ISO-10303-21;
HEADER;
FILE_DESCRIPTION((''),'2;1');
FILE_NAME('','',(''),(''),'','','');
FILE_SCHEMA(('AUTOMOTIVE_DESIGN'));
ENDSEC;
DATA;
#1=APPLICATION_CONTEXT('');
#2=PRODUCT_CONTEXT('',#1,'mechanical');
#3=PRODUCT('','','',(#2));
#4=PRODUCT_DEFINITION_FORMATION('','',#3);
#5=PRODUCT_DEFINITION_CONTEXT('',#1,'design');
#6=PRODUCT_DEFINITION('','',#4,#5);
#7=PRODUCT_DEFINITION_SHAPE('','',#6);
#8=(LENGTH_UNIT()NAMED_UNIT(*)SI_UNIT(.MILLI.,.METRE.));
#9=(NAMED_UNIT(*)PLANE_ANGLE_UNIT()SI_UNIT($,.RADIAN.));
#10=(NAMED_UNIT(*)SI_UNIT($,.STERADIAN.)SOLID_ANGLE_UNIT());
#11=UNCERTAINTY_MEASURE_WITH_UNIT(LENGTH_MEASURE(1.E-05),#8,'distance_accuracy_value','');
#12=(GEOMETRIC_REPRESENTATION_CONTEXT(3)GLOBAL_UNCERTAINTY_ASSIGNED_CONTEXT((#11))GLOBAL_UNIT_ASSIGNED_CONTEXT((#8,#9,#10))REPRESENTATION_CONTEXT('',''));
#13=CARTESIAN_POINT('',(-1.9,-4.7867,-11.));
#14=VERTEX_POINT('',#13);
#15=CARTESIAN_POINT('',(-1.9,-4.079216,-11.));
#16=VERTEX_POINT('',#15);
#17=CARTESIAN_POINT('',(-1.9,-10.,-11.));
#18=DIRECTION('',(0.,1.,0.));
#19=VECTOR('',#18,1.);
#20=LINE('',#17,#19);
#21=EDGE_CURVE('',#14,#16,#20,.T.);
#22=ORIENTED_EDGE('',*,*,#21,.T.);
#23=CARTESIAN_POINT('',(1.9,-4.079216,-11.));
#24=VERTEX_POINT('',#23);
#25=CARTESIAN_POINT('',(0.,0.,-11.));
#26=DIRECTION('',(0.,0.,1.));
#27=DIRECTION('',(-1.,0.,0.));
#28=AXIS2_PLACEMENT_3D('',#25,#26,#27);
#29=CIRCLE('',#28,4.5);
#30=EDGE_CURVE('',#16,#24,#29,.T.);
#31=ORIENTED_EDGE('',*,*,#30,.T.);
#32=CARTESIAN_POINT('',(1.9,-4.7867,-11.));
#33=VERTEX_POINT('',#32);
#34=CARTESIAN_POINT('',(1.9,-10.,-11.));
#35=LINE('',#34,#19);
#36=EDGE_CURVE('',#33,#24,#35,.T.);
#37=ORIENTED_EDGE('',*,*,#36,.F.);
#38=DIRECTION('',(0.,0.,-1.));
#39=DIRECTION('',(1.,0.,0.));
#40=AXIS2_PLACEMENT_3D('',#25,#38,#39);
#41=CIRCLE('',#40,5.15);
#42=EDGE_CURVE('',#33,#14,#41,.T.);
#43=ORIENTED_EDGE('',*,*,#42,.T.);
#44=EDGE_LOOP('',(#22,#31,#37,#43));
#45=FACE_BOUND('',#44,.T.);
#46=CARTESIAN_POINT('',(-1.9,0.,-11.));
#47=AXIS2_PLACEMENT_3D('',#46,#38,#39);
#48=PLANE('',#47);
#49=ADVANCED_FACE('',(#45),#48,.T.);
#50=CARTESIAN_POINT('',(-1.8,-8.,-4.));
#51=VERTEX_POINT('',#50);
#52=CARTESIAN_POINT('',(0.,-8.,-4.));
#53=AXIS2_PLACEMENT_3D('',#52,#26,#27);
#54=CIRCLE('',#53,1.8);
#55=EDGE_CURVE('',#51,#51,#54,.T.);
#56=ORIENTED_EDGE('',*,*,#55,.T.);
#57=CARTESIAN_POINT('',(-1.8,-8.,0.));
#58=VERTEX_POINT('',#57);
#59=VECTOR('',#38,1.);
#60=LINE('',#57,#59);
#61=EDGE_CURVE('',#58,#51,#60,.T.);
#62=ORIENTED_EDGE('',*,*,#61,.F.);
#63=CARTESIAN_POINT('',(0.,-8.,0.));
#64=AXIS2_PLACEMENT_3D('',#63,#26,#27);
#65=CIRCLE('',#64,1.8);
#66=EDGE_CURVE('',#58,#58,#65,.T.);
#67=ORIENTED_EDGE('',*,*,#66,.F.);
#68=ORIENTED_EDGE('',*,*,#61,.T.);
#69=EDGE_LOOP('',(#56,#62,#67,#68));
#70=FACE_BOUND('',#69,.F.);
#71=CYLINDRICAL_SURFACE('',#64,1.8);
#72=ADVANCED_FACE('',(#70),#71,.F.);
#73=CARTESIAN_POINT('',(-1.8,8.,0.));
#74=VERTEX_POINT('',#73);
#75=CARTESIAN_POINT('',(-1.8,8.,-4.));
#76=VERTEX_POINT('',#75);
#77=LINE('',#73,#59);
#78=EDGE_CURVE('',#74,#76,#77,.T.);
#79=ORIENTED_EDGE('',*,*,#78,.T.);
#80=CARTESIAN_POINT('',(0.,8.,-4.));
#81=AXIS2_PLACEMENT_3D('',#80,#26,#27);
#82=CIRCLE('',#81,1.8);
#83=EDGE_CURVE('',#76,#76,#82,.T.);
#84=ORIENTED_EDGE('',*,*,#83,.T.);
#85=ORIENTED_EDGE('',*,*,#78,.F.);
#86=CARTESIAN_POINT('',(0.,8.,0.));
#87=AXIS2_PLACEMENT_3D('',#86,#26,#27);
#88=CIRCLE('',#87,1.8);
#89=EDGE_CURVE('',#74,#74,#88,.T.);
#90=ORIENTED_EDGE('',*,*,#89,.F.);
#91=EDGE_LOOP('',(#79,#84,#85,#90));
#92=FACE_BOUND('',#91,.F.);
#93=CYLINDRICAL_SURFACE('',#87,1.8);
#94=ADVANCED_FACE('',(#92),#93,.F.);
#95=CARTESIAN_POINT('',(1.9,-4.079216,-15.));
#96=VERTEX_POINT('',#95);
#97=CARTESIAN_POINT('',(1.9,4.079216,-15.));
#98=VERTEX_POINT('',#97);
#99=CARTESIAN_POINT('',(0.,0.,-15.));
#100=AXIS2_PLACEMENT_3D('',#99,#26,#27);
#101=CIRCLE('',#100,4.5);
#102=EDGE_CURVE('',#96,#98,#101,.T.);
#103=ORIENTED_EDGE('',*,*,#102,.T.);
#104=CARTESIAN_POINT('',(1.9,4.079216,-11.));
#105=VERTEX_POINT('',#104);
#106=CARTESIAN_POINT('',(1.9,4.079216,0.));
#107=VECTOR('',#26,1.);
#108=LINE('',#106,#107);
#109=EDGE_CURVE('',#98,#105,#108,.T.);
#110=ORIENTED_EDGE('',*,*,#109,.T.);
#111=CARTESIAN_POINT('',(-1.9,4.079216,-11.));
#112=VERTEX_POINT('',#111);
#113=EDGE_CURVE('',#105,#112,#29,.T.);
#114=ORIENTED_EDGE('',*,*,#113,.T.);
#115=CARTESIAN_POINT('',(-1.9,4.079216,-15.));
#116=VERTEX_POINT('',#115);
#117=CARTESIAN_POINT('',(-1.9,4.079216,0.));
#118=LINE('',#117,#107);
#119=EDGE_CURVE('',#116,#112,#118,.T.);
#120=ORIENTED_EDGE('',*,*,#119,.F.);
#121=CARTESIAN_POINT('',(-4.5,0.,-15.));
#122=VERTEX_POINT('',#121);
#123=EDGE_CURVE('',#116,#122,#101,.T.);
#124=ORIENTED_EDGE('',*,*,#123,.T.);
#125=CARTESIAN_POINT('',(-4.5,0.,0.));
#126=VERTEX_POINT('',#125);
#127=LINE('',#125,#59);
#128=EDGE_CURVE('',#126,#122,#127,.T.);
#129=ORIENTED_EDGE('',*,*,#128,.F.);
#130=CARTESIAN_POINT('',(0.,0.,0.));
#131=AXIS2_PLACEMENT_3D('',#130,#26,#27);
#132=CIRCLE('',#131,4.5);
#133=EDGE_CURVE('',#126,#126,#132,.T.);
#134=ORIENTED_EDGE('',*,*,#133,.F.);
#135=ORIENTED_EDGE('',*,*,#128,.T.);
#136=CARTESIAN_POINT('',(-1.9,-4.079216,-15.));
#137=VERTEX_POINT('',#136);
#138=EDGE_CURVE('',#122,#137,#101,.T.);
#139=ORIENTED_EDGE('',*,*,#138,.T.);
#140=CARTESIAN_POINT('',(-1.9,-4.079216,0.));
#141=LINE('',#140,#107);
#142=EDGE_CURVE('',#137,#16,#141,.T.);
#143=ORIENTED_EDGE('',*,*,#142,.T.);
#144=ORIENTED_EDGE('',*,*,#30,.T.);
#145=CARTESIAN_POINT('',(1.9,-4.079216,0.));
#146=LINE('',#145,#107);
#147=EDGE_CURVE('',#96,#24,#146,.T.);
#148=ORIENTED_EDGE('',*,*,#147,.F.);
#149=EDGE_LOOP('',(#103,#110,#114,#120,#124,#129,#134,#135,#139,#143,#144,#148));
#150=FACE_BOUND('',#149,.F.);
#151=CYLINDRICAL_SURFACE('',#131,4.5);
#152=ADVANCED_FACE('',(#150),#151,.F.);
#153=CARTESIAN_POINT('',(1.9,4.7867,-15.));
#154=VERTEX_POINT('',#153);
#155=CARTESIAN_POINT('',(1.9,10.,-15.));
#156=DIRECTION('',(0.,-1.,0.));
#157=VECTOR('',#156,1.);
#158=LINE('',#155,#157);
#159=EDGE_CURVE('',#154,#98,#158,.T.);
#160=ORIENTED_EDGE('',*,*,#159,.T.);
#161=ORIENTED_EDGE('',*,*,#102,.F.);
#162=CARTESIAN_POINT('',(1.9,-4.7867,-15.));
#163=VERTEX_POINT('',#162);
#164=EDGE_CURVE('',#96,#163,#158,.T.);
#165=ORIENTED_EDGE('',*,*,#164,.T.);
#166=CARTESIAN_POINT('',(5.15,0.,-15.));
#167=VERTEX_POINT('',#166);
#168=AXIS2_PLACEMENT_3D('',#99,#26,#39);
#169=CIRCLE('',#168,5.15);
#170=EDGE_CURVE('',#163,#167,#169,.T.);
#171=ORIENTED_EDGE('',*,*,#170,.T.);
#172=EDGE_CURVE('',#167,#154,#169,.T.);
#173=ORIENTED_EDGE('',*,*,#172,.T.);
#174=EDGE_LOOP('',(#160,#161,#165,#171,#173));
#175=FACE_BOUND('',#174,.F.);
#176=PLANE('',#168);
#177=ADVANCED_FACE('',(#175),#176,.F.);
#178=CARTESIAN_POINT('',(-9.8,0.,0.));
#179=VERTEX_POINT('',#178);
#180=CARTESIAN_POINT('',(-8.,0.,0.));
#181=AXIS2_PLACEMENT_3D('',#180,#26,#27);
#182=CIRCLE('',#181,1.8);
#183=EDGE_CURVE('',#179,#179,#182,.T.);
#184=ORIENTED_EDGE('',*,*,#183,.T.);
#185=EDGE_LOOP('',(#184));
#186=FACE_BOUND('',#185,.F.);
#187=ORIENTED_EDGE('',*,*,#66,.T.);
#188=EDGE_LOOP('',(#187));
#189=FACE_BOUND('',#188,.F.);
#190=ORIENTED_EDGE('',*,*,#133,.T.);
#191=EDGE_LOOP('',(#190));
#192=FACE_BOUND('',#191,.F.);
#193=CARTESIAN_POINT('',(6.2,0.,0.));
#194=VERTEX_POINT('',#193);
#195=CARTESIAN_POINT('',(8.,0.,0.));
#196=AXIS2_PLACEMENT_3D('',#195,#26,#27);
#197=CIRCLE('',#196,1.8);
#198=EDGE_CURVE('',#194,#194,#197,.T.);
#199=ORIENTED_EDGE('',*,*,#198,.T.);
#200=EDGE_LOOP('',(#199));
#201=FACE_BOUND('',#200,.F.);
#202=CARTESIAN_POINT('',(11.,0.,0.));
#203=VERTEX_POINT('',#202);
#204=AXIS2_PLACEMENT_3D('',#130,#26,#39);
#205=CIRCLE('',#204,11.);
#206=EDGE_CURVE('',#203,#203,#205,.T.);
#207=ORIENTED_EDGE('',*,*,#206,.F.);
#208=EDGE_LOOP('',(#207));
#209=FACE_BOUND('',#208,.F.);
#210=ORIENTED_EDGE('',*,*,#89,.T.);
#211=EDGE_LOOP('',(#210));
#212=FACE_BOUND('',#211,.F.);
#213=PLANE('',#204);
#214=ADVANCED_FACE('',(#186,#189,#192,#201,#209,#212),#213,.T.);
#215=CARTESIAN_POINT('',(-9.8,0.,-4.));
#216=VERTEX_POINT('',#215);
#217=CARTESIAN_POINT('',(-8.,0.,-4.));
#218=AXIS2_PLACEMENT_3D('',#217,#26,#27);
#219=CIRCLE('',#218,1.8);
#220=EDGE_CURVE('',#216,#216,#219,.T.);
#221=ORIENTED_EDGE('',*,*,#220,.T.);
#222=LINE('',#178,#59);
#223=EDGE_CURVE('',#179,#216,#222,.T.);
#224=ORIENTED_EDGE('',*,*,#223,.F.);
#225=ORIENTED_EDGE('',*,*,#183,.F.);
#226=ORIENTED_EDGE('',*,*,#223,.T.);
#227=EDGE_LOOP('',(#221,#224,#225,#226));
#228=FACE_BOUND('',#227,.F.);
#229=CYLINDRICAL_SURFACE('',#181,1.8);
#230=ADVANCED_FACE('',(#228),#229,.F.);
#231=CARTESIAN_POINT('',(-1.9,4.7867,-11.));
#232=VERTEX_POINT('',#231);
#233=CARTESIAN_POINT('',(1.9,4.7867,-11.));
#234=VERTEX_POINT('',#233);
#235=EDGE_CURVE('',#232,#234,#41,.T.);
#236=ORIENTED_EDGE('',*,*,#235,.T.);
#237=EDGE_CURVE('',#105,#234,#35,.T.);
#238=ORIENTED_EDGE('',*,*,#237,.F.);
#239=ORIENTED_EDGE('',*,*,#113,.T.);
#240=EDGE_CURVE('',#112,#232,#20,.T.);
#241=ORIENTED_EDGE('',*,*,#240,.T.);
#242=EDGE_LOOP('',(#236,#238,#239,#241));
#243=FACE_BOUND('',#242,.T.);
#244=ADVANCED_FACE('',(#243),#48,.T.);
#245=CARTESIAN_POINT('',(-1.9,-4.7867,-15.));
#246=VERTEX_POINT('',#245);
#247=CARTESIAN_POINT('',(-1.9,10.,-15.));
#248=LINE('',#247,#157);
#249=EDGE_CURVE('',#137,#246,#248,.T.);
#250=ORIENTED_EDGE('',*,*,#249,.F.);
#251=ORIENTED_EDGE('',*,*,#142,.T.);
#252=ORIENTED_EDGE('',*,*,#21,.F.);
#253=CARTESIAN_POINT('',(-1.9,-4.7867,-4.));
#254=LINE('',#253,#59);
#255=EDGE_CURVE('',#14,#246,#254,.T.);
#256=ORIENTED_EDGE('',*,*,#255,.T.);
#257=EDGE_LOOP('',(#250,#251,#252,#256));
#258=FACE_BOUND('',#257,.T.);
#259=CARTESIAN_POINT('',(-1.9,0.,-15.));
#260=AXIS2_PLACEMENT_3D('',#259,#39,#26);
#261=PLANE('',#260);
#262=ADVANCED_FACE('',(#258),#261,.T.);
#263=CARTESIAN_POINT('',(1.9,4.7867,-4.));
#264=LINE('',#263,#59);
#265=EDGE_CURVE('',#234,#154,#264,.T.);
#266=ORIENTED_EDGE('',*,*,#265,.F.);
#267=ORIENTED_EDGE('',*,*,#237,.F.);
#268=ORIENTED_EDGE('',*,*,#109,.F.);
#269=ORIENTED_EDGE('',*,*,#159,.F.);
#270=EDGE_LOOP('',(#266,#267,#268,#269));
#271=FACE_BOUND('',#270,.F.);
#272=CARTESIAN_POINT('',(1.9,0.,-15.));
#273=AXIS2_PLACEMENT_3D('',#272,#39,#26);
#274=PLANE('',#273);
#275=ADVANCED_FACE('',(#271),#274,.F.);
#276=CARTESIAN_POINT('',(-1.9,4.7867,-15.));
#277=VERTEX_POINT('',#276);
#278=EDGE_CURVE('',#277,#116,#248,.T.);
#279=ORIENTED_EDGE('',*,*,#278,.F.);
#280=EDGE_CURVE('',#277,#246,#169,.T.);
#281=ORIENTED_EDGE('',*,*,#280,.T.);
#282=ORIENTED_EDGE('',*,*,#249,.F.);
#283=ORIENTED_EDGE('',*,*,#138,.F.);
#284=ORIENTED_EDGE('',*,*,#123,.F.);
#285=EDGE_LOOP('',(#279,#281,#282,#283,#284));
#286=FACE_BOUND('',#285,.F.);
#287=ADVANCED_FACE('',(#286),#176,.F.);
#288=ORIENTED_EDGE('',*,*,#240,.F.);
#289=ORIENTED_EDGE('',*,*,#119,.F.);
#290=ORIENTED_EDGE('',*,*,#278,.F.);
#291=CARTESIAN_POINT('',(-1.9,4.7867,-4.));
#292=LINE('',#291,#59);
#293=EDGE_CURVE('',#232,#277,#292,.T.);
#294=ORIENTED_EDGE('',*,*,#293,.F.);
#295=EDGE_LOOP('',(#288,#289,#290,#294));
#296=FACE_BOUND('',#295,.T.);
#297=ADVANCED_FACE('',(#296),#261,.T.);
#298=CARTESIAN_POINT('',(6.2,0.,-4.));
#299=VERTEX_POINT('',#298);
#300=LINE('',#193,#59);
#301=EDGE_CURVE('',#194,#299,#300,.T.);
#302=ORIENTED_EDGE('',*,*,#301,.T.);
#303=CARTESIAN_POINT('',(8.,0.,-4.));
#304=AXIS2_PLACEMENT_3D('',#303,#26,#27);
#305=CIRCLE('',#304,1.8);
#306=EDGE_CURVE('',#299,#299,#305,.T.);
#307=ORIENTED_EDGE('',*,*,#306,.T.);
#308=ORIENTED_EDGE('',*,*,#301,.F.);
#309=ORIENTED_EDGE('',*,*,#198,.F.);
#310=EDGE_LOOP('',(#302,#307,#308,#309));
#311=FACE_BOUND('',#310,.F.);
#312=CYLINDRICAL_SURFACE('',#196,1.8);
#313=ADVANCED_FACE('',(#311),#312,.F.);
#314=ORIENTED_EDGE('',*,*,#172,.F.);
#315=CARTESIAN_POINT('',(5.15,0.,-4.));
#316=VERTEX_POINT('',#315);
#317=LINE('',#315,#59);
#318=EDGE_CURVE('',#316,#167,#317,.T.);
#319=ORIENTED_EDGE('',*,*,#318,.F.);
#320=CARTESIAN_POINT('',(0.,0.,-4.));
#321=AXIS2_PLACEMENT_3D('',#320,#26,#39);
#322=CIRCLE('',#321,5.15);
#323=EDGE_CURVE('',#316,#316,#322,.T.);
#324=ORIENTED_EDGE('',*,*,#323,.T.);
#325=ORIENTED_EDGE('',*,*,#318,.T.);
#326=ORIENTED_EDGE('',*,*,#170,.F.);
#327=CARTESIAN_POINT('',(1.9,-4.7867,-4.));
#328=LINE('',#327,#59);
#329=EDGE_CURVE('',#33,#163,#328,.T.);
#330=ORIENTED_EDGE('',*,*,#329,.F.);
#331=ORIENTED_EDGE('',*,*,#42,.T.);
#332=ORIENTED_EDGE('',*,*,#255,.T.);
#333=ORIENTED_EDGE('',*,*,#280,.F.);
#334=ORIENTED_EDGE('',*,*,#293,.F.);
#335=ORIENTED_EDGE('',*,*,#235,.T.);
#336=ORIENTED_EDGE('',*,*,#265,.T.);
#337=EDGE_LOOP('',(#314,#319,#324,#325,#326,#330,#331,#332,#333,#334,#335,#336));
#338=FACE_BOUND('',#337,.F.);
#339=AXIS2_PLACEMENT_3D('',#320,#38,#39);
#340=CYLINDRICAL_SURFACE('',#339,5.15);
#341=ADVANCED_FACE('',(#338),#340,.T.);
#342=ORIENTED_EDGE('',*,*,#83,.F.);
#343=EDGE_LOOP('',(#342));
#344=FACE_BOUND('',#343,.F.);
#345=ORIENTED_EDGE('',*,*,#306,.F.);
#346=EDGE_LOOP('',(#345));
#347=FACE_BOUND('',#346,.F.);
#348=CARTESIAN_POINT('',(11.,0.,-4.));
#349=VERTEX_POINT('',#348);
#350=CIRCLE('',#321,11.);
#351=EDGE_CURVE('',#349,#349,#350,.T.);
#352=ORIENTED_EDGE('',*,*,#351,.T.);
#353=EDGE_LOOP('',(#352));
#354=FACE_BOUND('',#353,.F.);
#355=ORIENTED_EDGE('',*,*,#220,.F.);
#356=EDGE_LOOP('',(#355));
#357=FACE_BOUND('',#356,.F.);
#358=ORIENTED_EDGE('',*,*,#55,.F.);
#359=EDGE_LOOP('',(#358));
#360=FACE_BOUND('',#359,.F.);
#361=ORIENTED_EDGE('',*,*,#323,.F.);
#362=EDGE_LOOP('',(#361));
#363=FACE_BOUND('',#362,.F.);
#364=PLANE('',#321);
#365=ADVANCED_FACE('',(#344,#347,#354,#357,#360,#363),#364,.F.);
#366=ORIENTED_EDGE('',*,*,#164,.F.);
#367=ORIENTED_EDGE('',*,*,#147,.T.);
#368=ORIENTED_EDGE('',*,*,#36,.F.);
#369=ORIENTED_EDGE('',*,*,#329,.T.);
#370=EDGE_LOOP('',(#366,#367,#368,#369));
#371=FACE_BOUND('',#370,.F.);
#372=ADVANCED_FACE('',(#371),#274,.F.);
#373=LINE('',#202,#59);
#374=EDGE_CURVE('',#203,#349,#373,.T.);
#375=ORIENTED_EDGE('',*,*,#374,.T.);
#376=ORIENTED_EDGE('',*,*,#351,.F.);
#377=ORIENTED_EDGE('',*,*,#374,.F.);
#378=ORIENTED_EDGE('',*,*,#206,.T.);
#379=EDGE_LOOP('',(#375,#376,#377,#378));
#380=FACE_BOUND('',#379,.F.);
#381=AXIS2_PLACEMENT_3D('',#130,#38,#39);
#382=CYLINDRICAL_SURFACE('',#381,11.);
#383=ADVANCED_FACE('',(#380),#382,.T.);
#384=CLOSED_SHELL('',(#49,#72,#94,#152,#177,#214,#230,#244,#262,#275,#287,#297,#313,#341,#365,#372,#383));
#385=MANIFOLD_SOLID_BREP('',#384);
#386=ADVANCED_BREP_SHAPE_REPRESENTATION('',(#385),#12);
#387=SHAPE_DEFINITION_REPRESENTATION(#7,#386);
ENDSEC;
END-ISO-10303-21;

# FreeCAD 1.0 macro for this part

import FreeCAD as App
import Part
import Sketcher
Q = App.Units.Quantity

doc = App.newDocument("Part")
body = doc.addObject("PartDesign::Body", "Body")

sketch1 = body.newObject("Sketcher::SketchObject", "Sketch")
sketch1.AttachmentSupport = (doc.getObject("XZ_Plane"), [""])
sketch1.MapMode = "FlatFace"
sketch1.addGeometry(Part.LineSegment(App.Vector(11, 0, 0), App.Vector(0, 0, 0)), False)
sketch1.addGeometry(Part.LineSegment(App.Vector(0, 0, 0), App.Vector(0, -15, 0)), False)
sketch1.addGeometry(Part.LineSegment(App.Vector(0, -15, 0), App.Vector(5.2, -15, 0)), False)
sketch1.addGeometry(Part.LineSegment(App.Vector(5.2, -15, 0), App.Vector(5.2, -4, 0)), False)
sketch1.addGeometry(Part.LineSegment(App.Vector(5.2, -4, 0), App.Vector(11, -4, 0)), False)
sketch1.addGeometry(Part.LineSegment(App.Vector(11, -4, 0), App.Vector(11, 0, 0)), False)
sketch1.addConstraint(Sketcher.Constraint("Coincident", 0, 2, 1, 1))
sketch1.addConstraint(Sketcher.Constraint("Coincident", 1, 2, 2, 1))
sketch1.addConstraint(Sketcher.Constraint("Coincident", 2, 2, 3, 1))
sketch1.addConstraint(Sketcher.Constraint("Coincident", 3, 2, 4, 1))
sketch1.addConstraint(Sketcher.Constraint("Coincident", 4, 2, 5, 1))
sketch1.addConstraint(Sketcher.Constraint("Coincident", 5, 2, 0, 1))
sketch1.addConstraint(Sketcher.Constraint("Horizontal", 0))
sketch1.addConstraint(Sketcher.Constraint("Vertical", 1))
sketch1.addConstraint(Sketcher.Constraint("Horizontal", 2))
sketch1.addConstraint(Sketcher.Constraint("Vertical", 3))
sketch1.addConstraint(Sketcher.Constraint("Horizontal", 4))
sketch1.addConstraint(Sketcher.Constraint("Vertical", 5))
sketch1.addConstraint(Sketcher.Constraint("Coincident", 0, 2, -1, 1))
sketch1.addConstraint(Sketcher.Constraint("Equal", 0, 3))
sketch1.addConstraint(Sketcher.Constraint("DistanceX", 0, 2, 0, 1, Q("11 mm")))
sketch1.addConstraint(Sketcher.Constraint("DistanceY", 1, 2, 1, 1, Q("15 mm")))
sketch1.addConstraint(Sketcher.Constraint("DistanceX", 2, 1, 2, 2, Q("5.15 mm")))
revolution = body.newObject("PartDesign::Revolution", "Revolution")
revolution.Profile = sketch1
revolution.ReferenceAxis = (sketch1, ["V_Axis"])
revolution.Angle = 360

sketch2 = body.newObject("Sketcher::SketchObject", "Sketch001")
sketch2.AttachmentSupport = (doc.getObject("XY_Plane"), [""])
sketch2.MapMode = "FlatFace"
sketch2.addGeometry(Part.Circle(App.Vector(0, 0, 0), App.Vector(0, 0, 1), 4.5), False)
sketch2.addConstraint(Sketcher.Constraint("Coincident", 0, 3, -1, 1))
sketch2.addConstraint(Sketcher.Constraint("Diameter", 0, Q("9 mm")))
pocket1 = body.newObject("PartDesign::Pocket", "Pocket")
pocket1.Profile = sketch2
pocket1.Length = 25

sketch3 = body.newObject("Sketcher::SketchObject", "Sketch002")
sketch3.AttachmentSupport = (doc.getObject("XZ_Plane"), [""])
sketch3.MapMode = "FlatFace"
sketch3.addGeometry(Part.LineSegment(App.Vector(-1.9, -11, 0), App.Vector(-1.9, -15, 0)), False)
sketch3.addGeometry(Part.LineSegment(App.Vector(-1.9, -15, 0), App.Vector(1.9, -15, 0)), False)
sketch3.addGeometry(Part.LineSegment(App.Vector(1.9, -15, 0), App.Vector(1.9, -11, 0)), False)
sketch3.addGeometry(Part.LineSegment(App.Vector(1.9, -11, 0), App.Vector(-1.9, -11, 0)), False)
sketch3.addConstraint(Sketcher.Constraint("Coincident", 0, 2, 1, 1))
sketch3.addConstraint(Sketcher.Constraint("Coincident", 1, 2, 2, 1))
sketch3.addConstraint(Sketcher.Constraint("Coincident", 2, 2, 3, 1))
sketch3.addConstraint(Sketcher.Constraint("Coincident", 3, 2, 0, 1))
sketch3.addConstraint(Sketcher.Constraint("Vertical", 0))
sketch3.addConstraint(Sketcher.Constraint("Horizontal", 1))
sketch3.addConstraint(Sketcher.Constraint("Vertical", 2))
sketch3.addConstraint(Sketcher.Constraint("Horizontal", 3))
sketch3.addConstraint(Sketcher.Constraint("DistanceY", 0, 2, 0, 1, Q("4 mm")))
sketch3.addConstraint(Sketcher.Constraint("DistanceX", 1, 1, 1, 2, Q("3.8 mm")))
sketch3.addConstraint(Sketcher.Constraint("DistanceY", 0, 2, -1, 1, Q("15 mm")))
sketch3.addConstraint(Sketcher.Constraint("DistanceX", 0, 2, -1, 1, Q("1.9 mm")))
pocket2 = body.newObject("PartDesign::Pocket", "Pocket001")
pocket2.Profile = sketch3
pocket2.Length = 20
pocket2.Midplane = True

sketch4 = body.newObject("Sketcher::SketchObject", "Sketch003")
sketch4.AttachmentSupport = (doc.getObject("XY_Plane"), [""])
sketch4.MapMode = "FlatFace"
sketch4.addGeometry(Part.Circle(App.Vector(0, -8, 0), App.Vector(0, 0, 1), 1.8), False)
sketch4.addGeometry(Part.Circle(App.Vector(8, 0, 0), App.Vector(0, 0, 1), 1.8), False)
sketch4.addGeometry(Part.Circle(App.Vector(0, 8, 0), App.Vector(0, 0, 1), 1.8), False)
sketch4.addGeometry(Part.Circle(App.Vector(-8, 0, 0), App.Vector(0, 0, 1), 1.8), False)
sketch4.addConstraint(Sketcher.Constraint("Equal", 0, 1))
sketch4.addConstraint(Sketcher.Constraint("Equal", 1, 2))
sketch4.addConstraint(Sketcher.Constraint("Equal", 2, 3))
sketch4.addConstraint(Sketcher.Constraint("Symmetric", 0, 3, 2, 3, -1, 1))
sketch4.addConstraint(Sketcher.Constraint("Symmetric", 1, 3, 3, 3, -1, 1))
sketch4.addConstraint(Sketcher.Constraint("PointOnObject", 0, 3, -2))
sketch4.addConstraint(Sketcher.Constraint("PointOnObject", 1, 3, -1))
sketch4.addConstraint(Sketcher.Constraint("Diameter", 0, Q("3.6 mm")))
sketch4.addConstraint(Sketcher.Constraint("DistanceY", 0, 3, -1, 1, Q("8 mm")))
sketch4.addConstraint(Sketcher.Constraint("DistanceX", -1, 1, 1, 3, Q("8 mm")))
pocket3 = body.newObject("PartDesign::Pocket", "Pocket002")
pocket3.Profile = sketch4
pocket3.Length = 25

doc.recompute()
